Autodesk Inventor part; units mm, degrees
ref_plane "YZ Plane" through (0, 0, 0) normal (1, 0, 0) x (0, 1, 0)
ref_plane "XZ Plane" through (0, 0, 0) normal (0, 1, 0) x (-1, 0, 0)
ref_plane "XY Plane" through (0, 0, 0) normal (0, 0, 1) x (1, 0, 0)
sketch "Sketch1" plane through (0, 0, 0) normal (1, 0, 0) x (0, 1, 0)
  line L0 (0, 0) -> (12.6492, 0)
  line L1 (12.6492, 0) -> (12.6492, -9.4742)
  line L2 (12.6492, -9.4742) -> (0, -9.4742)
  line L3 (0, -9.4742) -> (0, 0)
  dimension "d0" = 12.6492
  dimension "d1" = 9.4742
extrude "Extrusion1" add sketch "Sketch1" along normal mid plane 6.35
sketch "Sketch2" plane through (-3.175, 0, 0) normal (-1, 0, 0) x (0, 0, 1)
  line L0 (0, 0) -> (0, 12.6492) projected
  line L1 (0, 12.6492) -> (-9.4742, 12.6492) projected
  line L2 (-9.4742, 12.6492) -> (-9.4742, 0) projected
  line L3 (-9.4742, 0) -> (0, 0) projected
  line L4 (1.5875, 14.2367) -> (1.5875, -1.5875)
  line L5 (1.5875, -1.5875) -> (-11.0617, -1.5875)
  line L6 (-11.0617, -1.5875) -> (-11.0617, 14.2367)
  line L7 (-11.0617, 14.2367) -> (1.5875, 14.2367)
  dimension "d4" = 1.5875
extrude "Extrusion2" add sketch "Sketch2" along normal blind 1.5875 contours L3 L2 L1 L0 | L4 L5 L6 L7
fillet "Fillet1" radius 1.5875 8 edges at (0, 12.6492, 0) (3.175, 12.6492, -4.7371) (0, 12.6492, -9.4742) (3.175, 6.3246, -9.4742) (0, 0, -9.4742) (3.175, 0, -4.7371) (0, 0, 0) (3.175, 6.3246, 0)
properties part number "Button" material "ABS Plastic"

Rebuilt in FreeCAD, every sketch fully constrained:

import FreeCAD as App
import Part
import Sketcher
Q = App.Units.Quantity


def edges_at(feature, points):
    """Names of the edges that pass closest to the given points."""
    edges = feature.Shape.Edges
    near = lambda p: min(range(len(edges)), key=lambda i: edges[i].distToShape(Part.Vertex(*p))[0])
    return sorted({f"Edge{near(p) + 1}" for p in points})


def add_polygon(sketch, points):
    """Adds a closed chain of lines whose ends are joined by coincident constraints."""
    first, n = sketch.GeometryCount, len(points)
    for a, b in zip(points, points[1:] + points[:1]):
        sketch.addGeometry(Part.LineSegment(App.Vector(*a, 0), App.Vector(*b, 0)), False)
    for i in range(n):
        sketch.addConstraint(Sketcher.Constraint("Coincident", first + i, 2, first + (i + 1) % n, 1))

doc = App.newDocument("Part")
body = doc.addObject("PartDesign::Body", "Body")

# Sketch on YZ plane
sketch1 = body.newObject("Sketcher::SketchObject", "Sketch")
sketch1.AttachmentSupport = (doc.getObject("YZ_Plane"), [""])
sketch1.MapMode = "FlatFace"
add_polygon(sketch1, [(13, 0), (0, 0), (0, -9), (13, -9)])  # lines 0-3
sketch1.addConstraint([
    Sketcher.Constraint("Horizontal", 0),
    Sketcher.Constraint("Vertical", 1),
    Sketcher.Constraint("Horizontal", 2),
    Sketcher.Constraint("Vertical", 3),
    Sketcher.Constraint("Coincident", 0, 2, -1, 1),
    Sketcher.Constraint("DistanceX", 0, 2, 0, 1, Q("0.498 in")),
    Sketcher.Constraint("DistanceY", 1, 2, 1, 1, Q("0.373 in")),
])
pad1 = body.newObject("PartDesign::Pad", "Pad")
pad1.Profile = sketch1
pad1.Length = Q("0.25 in")
pad1.Midplane = True

# Sketch on YZ plane
sketch2 = body.newObject("Sketcher::SketchObject", "Sketch001")
sketch2.AttachmentSupport = (doc.getObject("YZ_Plane"), [""])
sketch2.MapMode = "FlatFace"
sketch2.AttachmentOffset = App.Placement(App.Vector(0, 0, -0.125 * 25.4), App.Rotation())
add_polygon(sketch2, [(-2, 2), (14, 2), (14, -11), (-2, -11)])  # lines 0-3
sketch2.addConstraint([
    Sketcher.Constraint("Horizontal", 0),
    Sketcher.Constraint("Vertical", 1),
    Sketcher.Constraint("Horizontal", 2),
    Sketcher.Constraint("Vertical", 3),
    Sketcher.Constraint("DistanceY", -1, 1, 0, 2, Q("0.0625 in")),
    Sketcher.Constraint("DistanceX", 2, 2, -1, 1, Q("0.0625 in")),
    Sketcher.Constraint("DistanceX", 0, 1, 0, 2, Q("0.623 in")),
    Sketcher.Constraint("DistanceY", 1, 2, 1, 1, Q("0.498 in")),
])
pad2 = body.newObject("PartDesign::Pad", "Pad001")
pad2.Profile = sketch2
pad2.Length = Q("0.0625 in")
pad2.Reversed = True
doc.recompute()

fillet = body.newObject("PartDesign::Fillet", "Fillet")
fillet.Base = (pad2, edges_at(pad2, [
    (0, 12.649, 0),
    (3.175, 12.649, -4.737),
    (0, 12.649, -9.474),
    (3.175, 6.325, -9.474),
    (0, 0, -9.474),
    (3.175, 0, -4.737),
    (0, 0, 0),
    (3.175, 6.325, 0),
]))
fillet.Radius = Q("0.0625 in")

doc.recompute()
